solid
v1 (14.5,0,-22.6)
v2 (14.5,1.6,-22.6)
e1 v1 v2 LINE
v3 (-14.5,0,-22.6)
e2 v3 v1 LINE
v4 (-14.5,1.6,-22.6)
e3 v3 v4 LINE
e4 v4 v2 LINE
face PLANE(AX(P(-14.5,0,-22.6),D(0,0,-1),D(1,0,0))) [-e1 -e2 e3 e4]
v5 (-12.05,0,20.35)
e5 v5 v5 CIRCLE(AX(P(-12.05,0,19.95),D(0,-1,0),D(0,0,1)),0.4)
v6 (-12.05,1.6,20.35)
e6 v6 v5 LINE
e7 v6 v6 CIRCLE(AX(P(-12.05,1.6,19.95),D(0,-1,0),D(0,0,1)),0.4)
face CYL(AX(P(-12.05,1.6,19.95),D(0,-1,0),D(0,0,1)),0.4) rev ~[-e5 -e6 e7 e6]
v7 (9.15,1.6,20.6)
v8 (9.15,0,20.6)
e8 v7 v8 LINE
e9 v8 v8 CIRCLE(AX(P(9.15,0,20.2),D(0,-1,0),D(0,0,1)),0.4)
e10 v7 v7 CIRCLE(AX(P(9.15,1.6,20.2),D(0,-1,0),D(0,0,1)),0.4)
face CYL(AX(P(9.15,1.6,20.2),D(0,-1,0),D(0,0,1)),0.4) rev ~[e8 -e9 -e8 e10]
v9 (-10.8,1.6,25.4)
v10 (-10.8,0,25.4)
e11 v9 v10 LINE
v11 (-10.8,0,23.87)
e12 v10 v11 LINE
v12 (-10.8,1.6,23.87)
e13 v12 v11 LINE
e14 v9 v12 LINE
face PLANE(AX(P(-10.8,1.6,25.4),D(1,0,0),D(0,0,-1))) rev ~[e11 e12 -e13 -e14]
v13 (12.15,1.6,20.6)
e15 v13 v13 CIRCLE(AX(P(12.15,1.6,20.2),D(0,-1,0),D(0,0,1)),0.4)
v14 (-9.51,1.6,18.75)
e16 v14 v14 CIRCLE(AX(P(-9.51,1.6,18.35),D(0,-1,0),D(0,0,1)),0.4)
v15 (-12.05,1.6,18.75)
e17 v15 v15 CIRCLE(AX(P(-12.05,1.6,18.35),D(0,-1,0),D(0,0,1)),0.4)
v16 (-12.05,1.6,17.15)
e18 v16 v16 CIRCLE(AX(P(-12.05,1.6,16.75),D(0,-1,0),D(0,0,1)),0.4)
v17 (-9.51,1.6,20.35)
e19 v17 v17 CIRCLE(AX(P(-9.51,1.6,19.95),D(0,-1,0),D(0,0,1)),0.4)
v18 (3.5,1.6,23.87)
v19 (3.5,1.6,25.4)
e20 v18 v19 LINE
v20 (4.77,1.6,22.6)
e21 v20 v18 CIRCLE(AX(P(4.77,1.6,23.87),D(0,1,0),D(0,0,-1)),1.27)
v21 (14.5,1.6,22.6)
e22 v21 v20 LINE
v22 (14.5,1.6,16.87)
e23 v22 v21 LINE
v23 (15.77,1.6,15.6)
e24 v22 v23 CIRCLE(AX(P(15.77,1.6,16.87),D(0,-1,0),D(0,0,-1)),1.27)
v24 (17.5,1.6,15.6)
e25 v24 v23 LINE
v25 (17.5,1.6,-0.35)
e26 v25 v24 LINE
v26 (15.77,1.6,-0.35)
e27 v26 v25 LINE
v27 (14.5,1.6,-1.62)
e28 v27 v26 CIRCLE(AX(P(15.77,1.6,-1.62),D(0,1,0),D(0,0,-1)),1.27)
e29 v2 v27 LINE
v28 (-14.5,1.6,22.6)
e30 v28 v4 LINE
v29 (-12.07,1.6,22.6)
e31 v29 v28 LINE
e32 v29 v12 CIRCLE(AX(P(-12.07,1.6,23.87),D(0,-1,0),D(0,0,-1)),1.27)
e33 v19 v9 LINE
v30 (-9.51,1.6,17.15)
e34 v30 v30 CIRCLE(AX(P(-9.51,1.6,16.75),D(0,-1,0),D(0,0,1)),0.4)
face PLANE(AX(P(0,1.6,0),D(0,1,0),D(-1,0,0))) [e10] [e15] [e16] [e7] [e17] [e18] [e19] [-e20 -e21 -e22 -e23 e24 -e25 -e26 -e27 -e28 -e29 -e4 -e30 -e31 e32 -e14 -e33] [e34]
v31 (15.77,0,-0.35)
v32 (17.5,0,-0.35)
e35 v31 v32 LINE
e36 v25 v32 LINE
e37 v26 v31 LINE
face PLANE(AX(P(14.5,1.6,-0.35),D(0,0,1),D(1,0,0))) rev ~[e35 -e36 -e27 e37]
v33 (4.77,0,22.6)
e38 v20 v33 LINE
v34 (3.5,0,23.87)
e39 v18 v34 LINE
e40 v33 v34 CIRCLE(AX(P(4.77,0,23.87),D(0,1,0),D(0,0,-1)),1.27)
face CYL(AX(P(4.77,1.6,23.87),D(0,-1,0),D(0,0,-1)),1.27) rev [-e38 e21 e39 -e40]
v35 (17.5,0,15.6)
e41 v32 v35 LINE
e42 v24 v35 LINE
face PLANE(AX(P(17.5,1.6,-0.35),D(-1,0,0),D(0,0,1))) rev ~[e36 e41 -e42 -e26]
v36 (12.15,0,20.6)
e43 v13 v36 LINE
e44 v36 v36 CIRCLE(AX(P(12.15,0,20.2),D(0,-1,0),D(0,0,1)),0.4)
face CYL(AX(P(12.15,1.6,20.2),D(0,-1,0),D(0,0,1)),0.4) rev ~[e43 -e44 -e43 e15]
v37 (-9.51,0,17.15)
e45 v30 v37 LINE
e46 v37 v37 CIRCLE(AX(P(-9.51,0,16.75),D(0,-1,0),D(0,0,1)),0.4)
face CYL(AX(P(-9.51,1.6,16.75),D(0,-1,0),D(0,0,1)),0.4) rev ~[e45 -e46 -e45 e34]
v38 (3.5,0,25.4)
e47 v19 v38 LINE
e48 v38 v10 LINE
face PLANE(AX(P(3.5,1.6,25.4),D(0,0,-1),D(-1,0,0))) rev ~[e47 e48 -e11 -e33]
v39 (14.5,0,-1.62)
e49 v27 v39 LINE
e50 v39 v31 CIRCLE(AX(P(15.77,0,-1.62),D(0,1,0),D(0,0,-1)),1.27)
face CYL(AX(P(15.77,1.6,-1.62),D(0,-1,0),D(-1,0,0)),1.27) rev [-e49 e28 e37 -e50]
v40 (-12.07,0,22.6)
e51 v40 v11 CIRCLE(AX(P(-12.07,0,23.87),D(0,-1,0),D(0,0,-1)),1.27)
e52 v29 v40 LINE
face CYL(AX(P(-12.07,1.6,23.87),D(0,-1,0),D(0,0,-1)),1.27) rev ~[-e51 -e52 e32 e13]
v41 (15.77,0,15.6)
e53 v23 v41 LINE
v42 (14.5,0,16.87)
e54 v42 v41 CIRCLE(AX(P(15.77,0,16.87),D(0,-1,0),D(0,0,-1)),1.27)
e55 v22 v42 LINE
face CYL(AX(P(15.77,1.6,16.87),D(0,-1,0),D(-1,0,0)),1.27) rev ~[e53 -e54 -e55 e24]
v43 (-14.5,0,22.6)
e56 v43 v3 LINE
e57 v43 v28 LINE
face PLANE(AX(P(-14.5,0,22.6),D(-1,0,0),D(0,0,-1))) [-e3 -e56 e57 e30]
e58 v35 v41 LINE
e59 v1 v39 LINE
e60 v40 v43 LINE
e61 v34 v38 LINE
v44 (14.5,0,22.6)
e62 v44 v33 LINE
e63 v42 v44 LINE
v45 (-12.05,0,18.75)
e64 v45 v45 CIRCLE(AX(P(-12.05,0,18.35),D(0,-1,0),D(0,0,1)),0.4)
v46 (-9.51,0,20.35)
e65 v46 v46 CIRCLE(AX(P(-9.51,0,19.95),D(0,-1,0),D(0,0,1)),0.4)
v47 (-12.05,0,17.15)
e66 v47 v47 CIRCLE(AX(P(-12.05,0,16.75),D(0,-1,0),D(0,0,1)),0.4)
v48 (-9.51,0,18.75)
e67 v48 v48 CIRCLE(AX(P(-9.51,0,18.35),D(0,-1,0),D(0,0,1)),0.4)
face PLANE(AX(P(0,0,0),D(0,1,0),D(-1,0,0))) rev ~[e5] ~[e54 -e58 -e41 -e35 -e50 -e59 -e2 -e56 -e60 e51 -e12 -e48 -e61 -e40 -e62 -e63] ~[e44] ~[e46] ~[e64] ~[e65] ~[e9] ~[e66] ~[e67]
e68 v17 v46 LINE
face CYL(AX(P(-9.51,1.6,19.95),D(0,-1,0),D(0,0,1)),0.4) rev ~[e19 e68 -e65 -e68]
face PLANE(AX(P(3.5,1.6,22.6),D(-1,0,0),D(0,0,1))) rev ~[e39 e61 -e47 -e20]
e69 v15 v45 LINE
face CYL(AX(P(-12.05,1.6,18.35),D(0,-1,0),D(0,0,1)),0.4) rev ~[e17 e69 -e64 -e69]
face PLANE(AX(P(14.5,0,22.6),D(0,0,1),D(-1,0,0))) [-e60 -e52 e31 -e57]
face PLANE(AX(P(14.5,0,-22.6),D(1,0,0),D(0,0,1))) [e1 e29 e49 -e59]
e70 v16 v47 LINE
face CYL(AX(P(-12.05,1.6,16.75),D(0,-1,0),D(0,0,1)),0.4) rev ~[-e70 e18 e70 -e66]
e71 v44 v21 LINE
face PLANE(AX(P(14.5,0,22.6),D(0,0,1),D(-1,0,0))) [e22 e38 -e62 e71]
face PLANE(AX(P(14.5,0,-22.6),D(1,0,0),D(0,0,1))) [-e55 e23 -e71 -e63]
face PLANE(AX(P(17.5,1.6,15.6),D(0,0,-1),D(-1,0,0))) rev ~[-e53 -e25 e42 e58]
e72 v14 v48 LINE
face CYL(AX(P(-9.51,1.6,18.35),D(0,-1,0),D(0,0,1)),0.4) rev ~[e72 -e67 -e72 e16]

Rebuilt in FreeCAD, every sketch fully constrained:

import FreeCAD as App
import Part
import Sketcher
from FreeCAD import Vector


def edges_at(feature, points):
    """Names of the edges that pass closest to the given points."""
    edges = feature.Shape.Edges
    near = lambda p: min(range(len(edges)), key=lambda i: edges[i].distToShape(Part.Vertex(*p))[0])
    return sorted({f"Edge{near(p) + 1}" for p in points})

doc = App.newDocument("Part")
params = doc.addObject("Spreadsheet::Sheet", "Params")
for row, (alias, value) in enumerate([
    ("sketch1_width", "29 mm"),
    ("sketch1_height", "45.2 mm"),
    ("pad1_length", "1.6 mm"),
    ("sketch2_width", "3 mm"),
    ("sketch2_height", "15.95 mm"),
    ("pad2_length", "1.6 mm"),
    ("sketch3_width", "14.3 mm"),
    ("sketch3_height", "2.8 mm"),
    ("pad3_length", "1.6 mm"),
    ("fillet_radius", "1.27 mm"),
    ("sketch4_diameter", "0.8 mm"),
    ("hole_diameter", "0.8 mm"),
    ("sketch5_diameter", "0.8 mm"),
    ("hole2_diameter", "0.8 mm"),
], start=1):
    params.set(f"A{row}", alias)
    params.set(f"B{row}", "=" + value)
    params.setAlias(f"B{row}", alias)

body = doc.addObject("PartDesign::Body", "Body")

# Sketch on XZ plane
sketch1 = body.newObject("Sketcher::SketchObject", "Sketch")
sketch1.AttachmentSupport = (doc.getObject("XZ_Plane"), [""])
sketch1.MapMode = "FlatFace"
sketch1.addGeometry([
    Part.LineSegment(Vector(14, -23, 0), Vector(-14, -23, 0)),
    Part.LineSegment(Vector(-14, -23, 0), Vector(-14, 23, 0)),
    Part.LineSegment(Vector(-14, 23, 0), Vector(14, 23, 0)),
    Part.LineSegment(Vector(14, 23, 0), Vector(14, -23, 0)),
], False)
sketch1.addConstraint([
    Sketcher.Constraint("Coincident", 0, 2, 1, 1),
    Sketcher.Constraint("Coincident", 1, 2, 2, 1),
    Sketcher.Constraint("Coincident", 2, 2, 3, 1),
    Sketcher.Constraint("Coincident", 3, 2, 0, 1),
    Sketcher.Constraint("Horizontal", 0),
    Sketcher.Constraint("Vertical", 1),
    Sketcher.Constraint("Horizontal", 2),
    Sketcher.Constraint("Vertical", 3),
    Sketcher.Constraint("Symmetric", 0, 2, 2, 2, -1, 1),
    Sketcher.Constraint("DistanceX", 0, 2, 0, 1, 29.0),
    Sketcher.Constraint("DistanceY", 1, 1, 1, 2, 45.2),
])
sketch1.setExpression("Constraints[9]", "Params.sketch1_width")
sketch1.setExpression("Constraints[10]", "Params.sketch1_height")
pad1 = body.newObject("PartDesign::Pad", "Pad")
pad1.Profile = sketch1
pad1.setExpression("Length", "Params.pad1_length")
pad1.Reversed = True

# Sketch on XZ plane
sketch2 = body.newObject("Sketcher::SketchObject", "Sketch001")
sketch2.AttachmentSupport = (doc.getObject("XZ_Plane"), [""])
sketch2.MapMode = "FlatFace"
sketch2.AttachmentOffset = App.Placement(Vector(0, 0, -1.6), App.Rotation())
sketch2.addGeometry([
    Part.LineSegment(Vector(17.5, -0.3, 0), Vector(14.5, -0.3, 0)),
    Part.LineSegment(Vector(14.5, -0.3, 0), Vector(14.5, 15.6, 0)),
    Part.LineSegment(Vector(14.5, 15.6, 0), Vector(17.5, 15.6, 0)),
    Part.LineSegment(Vector(17.5, 15.6, 0), Vector(17.5, -0.3, 0)),
], False)
sketch2.addConstraint([
    Sketcher.Constraint("Coincident", 0, 2, 1, 1),
    Sketcher.Constraint("Coincident", 1, 2, 2, 1),
    Sketcher.Constraint("Coincident", 2, 2, 3, 1),
    Sketcher.Constraint("Coincident", 3, 2, 0, 1),
    Sketcher.Constraint("Horizontal", 0),
    Sketcher.Constraint("Vertical", 1),
    Sketcher.Constraint("Horizontal", 2),
    Sketcher.Constraint("Vertical", 3),
    Sketcher.Constraint("DistanceX", 0, 2, 0, 1, 3.0),
    Sketcher.Constraint("DistanceY", 1, 1, 1, 2, 15.95),
    Sketcher.Constraint("DistanceX", -1, 1, 0, 2, 14.5),
    Sketcher.Constraint("DistanceY", -1, 1, 1, 2, 15.6),
])
sketch2.setExpression("Constraints[8]", "Params.sketch2_width")
sketch2.setExpression("Constraints[9]", "Params.sketch2_height")
pad2 = body.newObject("PartDesign::Pad", "Pad001")
pad2.Profile = sketch2
pad2.setExpression("Length", "Params.pad2_length")

# Sketch on XZ plane
sketch3 = body.newObject("Sketcher::SketchObject", "Sketch002")
sketch3.AttachmentSupport = (doc.getObject("XZ_Plane"), [""])
sketch3.MapMode = "FlatFace"
sketch3.AttachmentOffset = App.Placement(Vector(0, 0, -1.6), App.Rotation())
sketch3.addGeometry([
    Part.LineSegment(Vector(3.5, 22.6, 0), Vector(-10.8, 22.6, 0)),
    Part.LineSegment(Vector(-10.8, 22.6, 0), Vector(-10.8, 25.4, 0)),
    Part.LineSegment(Vector(-10.8, 25.4, 0), Vector(3.5, 25.4, 0)),
    Part.LineSegment(Vector(3.5, 25.4, 0), Vector(3.5, 22.6, 0)),
], False)
sketch3.addConstraint([
    Sketcher.Constraint("Coincident", 0, 2, 1, 1),
    Sketcher.Constraint("Coincident", 1, 2, 2, 1),
    Sketcher.Constraint("Coincident", 2, 2, 3, 1),
    Sketcher.Constraint("Coincident", 3, 2, 0, 1),
    Sketcher.Constraint("Horizontal", 0),
    Sketcher.Constraint("Vertical", 1),
    Sketcher.Constraint("Horizontal", 2),
    Sketcher.Constraint("Vertical", 3),
    Sketcher.Constraint("DistanceX", 0, 2, 0, 1, 14.3),
    Sketcher.Constraint("DistanceY", 1, 1, 1, 2, 2.8),
    Sketcher.Constraint("DistanceX", 0, 2, -1, 1, 10.8),
    Sketcher.Constraint("DistanceY", -1, 1, 0, 2, 22.6),
])
sketch3.setExpression("Constraints[8]", "Params.sketch3_width")
sketch3.setExpression("Constraints[9]", "Params.sketch3_height")
pad3 = body.newObject("PartDesign::Pad", "Pad002")
pad3.Profile = sketch3
pad3.setExpression("Length", "Params.pad3_length")
doc.recompute()

fillet = body.newObject("PartDesign::Fillet", "Fillet")
fillet.Base = (pad3, edges_at(pad3, [
    (-10.8, 0.8, 22.6),
    (3.5, 0.8, 22.6),
    (14.5, 0.8, 15.6),
    (14.5, 0.8, -0.35),
]))
fillet.setExpression("Radius", "Params.fillet_radius")

# Sketch on XZ plane
sketch4 = body.newObject("Sketcher::SketchObject", "Sketch003")
sketch4.AttachmentSupport = (doc.getObject("XZ_Plane"), [""])
sketch4.MapMode = "FlatFace"
sketch4.AttachmentOffset = App.Placement(Vector(0, 0, -1.6), App.Rotation())
sketch4.addGeometry([
    Part.Circle(Vector(12.15, 20.2, 0), Vector(0, 0, 1), 0.4),
    Part.Circle(Vector(9.15, 20.2, 0), Vector(0, 0, 1), 0.4),
], False)
sketch4.addConstraint([
    Sketcher.Constraint("Equal", 0, 1),
    Sketcher.Constraint("Horizontal", 0, 3, 1, 3),
    Sketcher.Constraint("Diameter", 0, 0.8),
    Sketcher.Constraint("DistanceX", 1, 3, 0, 3, 3.0),
    Sketcher.Constraint("DistanceY", -1, 1, 0, 3, 20.2),
    Sketcher.Constraint("DistanceX", -1, 1, 0, 3, 12.15),
])
sketch4.setExpression("Constraints[2]", "Params.sketch4_diameter")
doc.recompute()
hole = body.newObject("PartDesign::Hole", "Hole")
hole.Profile = sketch4
hole.ThreadType = "None"
hole.setExpression("Diameter", "Params.hole_diameter")
hole.DepthType = "ThroughAll"
hole.Reversed = True

# Sketch on XZ plane
sketch5 = body.newObject("Sketcher::SketchObject", "Sketch004")
sketch5.AttachmentSupport = (doc.getObject("XZ_Plane"), [""])
sketch5.MapMode = "FlatFace"
sketch5.AttachmentOffset = App.Placement(Vector(0, 0, -1.6), App.Rotation())
sketch5.addGeometry([
    Part.Circle(Vector(-12.05, 19.95, 0), Vector(0, 0, 1), 0.4),  # 0
    Part.Circle(Vector(-12.05, 18.35, 0), Vector(0, 0, 1), 0.4),  # 1
    Part.Circle(Vector(-12.05, 16.75, 0), Vector(0, 0, 1), 0.4),  # 2
    Part.Circle(Vector(-9.51, 19.95, 0), Vector(0, 0, 1), 0.4),  # 3
    Part.Circle(Vector(-9.51, 18.35, 0), Vector(0, 0, 1), 0.4),  # 4
    Part.Circle(Vector(-9.51, 16.75, 0), Vector(0, 0, 1), 0.4),  # 5
], False)
sketch5.addConstraint([
    Sketcher.Constraint("Equal", 0, 1),
    Sketcher.Constraint("Equal", 1, 2),
    Sketcher.Constraint("Equal", 2, 3),
    Sketcher.Constraint("Equal", 3, 4),
    Sketcher.Constraint("Equal", 4, 5),
    Sketcher.Constraint("Horizontal", 0, 3, 3, 3),
    Sketcher.Constraint("Horizontal", 1, 3, 4, 3),
    Sketcher.Constraint("Horizontal", 2, 3, 5, 3),
    Sketcher.Constraint("Vertical", 0, 3, 1, 3),
    Sketcher.Constraint("Vertical", 1, 3, 2, 3),
    Sketcher.Constraint("Vertical", 3, 3, 4, 3),
    Sketcher.Constraint("Vertical", 4, 3, 5, 3),
    Sketcher.Constraint("Diameter", 0, 0.8),
    Sketcher.Constraint("DistanceY", 1, 3, 0, 3, 1.6),
    Sketcher.Constraint("DistanceY", 2, 3, 1, 3, 1.6),
    Sketcher.Constraint("DistanceX", 0, 3, -1, 1, 12.05),
    Sketcher.Constraint("DistanceY", -1, 1, 0, 3, 19.95),
    Sketcher.Constraint("DistanceX", 3, 3, -1, 1, 9.51),
])
sketch5.setExpression("Constraints[12]", "Params.sketch5_diameter")
doc.recompute()
hole2 = body.newObject("PartDesign::Hole", "Hole001")
hole2.Profile = sketch5
hole2.ThreadType = "None"
hole2.setExpression("Diameter", "Params.hole2_diameter")
hole2.DepthType = "ThroughAll"
hole2.Reversed = True

doc.recompute()
